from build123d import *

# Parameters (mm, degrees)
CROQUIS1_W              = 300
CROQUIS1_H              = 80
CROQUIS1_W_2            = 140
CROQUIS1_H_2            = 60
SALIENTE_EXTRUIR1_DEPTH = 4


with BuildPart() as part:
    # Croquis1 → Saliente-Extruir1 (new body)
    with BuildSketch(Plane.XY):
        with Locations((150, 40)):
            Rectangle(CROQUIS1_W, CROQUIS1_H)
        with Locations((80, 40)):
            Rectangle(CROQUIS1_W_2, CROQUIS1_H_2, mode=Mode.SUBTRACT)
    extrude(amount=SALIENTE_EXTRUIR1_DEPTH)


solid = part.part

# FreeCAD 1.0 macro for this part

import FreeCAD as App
import Part
import Sketcher
Q = App.Units.Quantity


def add_polygon(sketch, points):
    """Adds a closed chain of lines whose ends are joined by coincident constraints."""
    first, n = sketch.GeometryCount, len(points)
    for a, b in zip(points, points[1:] + points[:1]):
        sketch.addGeometry(Part.LineSegment(App.Vector(*a, 0), App.Vector(*b, 0)), False)
    for i in range(n):
        sketch.addConstraint(Sketcher.Constraint("Coincident", first + i, 2, first + (i + 1) % n, 1))

doc = App.newDocument("Part")
body = doc.addObject("PartDesign::Body", "Body")

sketch1 = body.newObject("Sketcher::SketchObject", "Sketch")
sketch1.AttachmentSupport = (doc.getObject("XY_Plane"), [""])
sketch1.MapMode = "FlatFace"
add_polygon(sketch1, [(0, 80), (0, 0), (300, 0), (300, 80)])
add_polygon(sketch1, [(150, 10), (10, 10), (10, 70), (150, 70)])
sketch1.addConstraint([
    Sketcher.Constraint("Vertical", 0),
    Sketcher.Constraint("Horizontal", 1),
    Sketcher.Constraint("Vertical", 2),
    Sketcher.Constraint("Horizontal", 3),
    Sketcher.Constraint("Horizontal", 4),
    Sketcher.Constraint("Vertical", 5),
    Sketcher.Constraint("Horizontal", 6),
    Sketcher.Constraint("Vertical", 7),
    Sketcher.Constraint("Coincident", 0, 2, -1, 1),
    Sketcher.Constraint("DistanceX", 1, 1, 1, 2, Q("300 mm")),
    Sketcher.Constraint("DistanceX", 4, 2, 4, 1, Q("140 mm")),
    Sketcher.Constraint("DistanceY", 0, 2, 0, 1, Q("80 mm")),
    Sketcher.Constraint("DistanceY", 5, 1, 5, 2, Q("60 mm")),
    Sketcher.Constraint("DistanceX", -1, 1, 4, 2, Q("10 mm")),
    Sketcher.Constraint("DistanceY", -1, 1, 4, 2, Q("10 mm")),
])
pad1 = body.newObject("PartDesign::Pad", "Pad")
pad1.Profile = sketch1
pad1.Length = 4

doc.recompute()
